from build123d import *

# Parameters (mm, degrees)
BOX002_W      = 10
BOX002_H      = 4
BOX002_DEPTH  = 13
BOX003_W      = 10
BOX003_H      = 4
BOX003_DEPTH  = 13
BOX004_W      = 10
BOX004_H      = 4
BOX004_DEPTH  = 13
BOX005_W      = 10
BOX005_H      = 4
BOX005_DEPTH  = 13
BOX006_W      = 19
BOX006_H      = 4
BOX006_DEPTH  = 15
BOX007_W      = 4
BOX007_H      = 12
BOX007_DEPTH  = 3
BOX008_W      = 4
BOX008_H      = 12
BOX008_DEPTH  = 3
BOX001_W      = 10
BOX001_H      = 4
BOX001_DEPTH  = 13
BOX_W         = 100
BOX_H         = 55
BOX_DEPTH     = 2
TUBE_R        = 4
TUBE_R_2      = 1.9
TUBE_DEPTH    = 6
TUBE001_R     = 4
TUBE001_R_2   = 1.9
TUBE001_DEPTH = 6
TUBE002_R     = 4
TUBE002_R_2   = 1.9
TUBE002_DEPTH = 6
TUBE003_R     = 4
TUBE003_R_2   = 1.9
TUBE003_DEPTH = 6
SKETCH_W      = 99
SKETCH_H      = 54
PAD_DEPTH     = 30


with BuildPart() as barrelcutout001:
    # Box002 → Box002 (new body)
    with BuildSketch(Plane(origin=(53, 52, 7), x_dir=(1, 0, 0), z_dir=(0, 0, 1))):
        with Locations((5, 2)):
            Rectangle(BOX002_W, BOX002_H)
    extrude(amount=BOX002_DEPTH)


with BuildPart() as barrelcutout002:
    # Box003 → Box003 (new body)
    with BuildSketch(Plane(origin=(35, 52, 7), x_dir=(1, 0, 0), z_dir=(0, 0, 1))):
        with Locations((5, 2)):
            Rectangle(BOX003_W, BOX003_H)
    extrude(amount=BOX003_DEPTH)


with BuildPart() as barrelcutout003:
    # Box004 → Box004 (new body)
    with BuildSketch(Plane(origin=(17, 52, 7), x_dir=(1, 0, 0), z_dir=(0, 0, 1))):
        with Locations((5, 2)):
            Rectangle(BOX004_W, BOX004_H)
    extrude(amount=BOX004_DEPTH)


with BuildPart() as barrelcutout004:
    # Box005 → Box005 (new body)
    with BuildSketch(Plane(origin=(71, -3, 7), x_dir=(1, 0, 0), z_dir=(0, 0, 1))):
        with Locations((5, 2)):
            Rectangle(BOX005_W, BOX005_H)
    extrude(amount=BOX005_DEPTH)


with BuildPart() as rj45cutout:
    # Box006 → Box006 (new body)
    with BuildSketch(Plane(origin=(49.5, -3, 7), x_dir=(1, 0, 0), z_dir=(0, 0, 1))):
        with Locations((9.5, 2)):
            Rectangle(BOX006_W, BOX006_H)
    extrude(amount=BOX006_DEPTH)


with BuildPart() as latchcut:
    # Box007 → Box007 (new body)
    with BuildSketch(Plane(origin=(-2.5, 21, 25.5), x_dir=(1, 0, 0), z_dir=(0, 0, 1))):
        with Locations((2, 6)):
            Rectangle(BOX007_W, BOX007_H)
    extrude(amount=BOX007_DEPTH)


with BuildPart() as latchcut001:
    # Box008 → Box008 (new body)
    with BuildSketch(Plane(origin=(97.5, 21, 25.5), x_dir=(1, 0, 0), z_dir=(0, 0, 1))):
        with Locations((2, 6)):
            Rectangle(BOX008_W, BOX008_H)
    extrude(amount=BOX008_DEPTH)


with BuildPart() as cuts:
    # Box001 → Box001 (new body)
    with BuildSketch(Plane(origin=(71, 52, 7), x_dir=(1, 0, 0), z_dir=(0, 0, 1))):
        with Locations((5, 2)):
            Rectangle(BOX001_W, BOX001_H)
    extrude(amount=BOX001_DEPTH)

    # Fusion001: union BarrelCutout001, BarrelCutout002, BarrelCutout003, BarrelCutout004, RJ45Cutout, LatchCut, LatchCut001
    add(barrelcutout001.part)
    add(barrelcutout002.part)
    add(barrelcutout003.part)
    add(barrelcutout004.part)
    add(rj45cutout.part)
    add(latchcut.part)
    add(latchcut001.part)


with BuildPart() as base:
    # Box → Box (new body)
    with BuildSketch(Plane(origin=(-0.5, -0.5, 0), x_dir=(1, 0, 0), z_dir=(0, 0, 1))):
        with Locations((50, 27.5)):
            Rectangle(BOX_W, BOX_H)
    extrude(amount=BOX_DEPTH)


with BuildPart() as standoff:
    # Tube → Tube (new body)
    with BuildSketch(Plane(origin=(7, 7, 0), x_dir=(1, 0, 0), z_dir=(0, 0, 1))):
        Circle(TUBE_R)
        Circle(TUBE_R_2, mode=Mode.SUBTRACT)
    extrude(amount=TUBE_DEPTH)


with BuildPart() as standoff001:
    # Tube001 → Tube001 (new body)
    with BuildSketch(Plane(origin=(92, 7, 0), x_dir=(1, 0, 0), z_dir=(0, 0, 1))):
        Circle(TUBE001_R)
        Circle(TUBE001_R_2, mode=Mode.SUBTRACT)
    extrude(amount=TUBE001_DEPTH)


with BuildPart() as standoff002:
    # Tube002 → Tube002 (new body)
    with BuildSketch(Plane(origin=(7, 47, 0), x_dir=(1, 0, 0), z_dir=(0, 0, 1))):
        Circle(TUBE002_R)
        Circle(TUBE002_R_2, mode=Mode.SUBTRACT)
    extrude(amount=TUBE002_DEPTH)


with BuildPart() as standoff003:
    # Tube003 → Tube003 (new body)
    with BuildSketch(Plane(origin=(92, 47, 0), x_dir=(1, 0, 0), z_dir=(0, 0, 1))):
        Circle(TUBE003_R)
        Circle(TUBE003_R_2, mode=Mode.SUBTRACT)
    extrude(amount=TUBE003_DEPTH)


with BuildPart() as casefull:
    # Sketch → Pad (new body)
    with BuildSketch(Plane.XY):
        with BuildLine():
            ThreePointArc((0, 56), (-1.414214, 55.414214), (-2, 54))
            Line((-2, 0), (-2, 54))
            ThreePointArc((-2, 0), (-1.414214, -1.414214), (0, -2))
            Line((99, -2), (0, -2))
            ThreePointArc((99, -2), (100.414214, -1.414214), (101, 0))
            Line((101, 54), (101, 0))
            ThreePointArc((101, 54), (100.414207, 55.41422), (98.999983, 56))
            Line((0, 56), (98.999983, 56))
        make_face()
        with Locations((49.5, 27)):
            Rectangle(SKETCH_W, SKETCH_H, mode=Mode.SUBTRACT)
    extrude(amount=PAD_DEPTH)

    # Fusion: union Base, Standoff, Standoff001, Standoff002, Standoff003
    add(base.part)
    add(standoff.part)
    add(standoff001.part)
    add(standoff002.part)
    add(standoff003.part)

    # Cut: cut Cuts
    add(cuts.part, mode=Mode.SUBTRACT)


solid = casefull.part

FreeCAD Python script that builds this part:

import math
import FreeCAD as App
import Part
import Sketcher


def add_polygon(sketch, points):
    """Adds a closed chain of lines whose ends are joined by coincident constraints."""
    first, n = sketch.GeometryCount, len(points)
    for a, b in zip(points, points[1:] + points[:1]):
        sketch.addGeometry(Part.LineSegment(App.Vector(*a, 0), App.Vector(*b, 0)), False)
    for i in range(n):
        sketch.addConstraint(Sketcher.Constraint("Coincident", first + i, 2, first + (i + 1) % n, 1))

doc = App.newDocument("Part")
body = doc.addObject("PartDesign::Body", "Body")

sketch1 = doc.addObject("Sketcher::SketchObject", "Sketch")
body.addObject(sketch1)
sketch1.AttachmentSupport = (doc.XY_Plane, [""])
sketch1.MapMode = "FlatFace"
sketch1.AttachmentOffset = App.Placement(App.Vector(0, 0, 7), App.Rotation())
add_polygon(sketch1, [(53, 56), (53, 52), (63, 52), (63, 56)])
sketch1.addConstraint([
    Sketcher.Constraint("Vertical", 0),
    Sketcher.Constraint("Horizontal", 1),
    Sketcher.Constraint("Vertical", 2),
    Sketcher.Constraint("Horizontal", 3),
    Sketcher.Constraint("DistanceX", 1, 1, 1, 2, 10.0),
    Sketcher.Constraint("DistanceY", 0, 2, 0, 1, 4.0),
    Sketcher.Constraint("DistanceX", -1, 1, 0, 2, 53.0),
    Sketcher.Constraint("DistanceY", -1, 1, 0, 2, 52.0),
])
pad1 = doc.addObject("PartDesign::Pad", "Pad")
body.addObject(pad1)
pad1.Profile = sketch1
pad1.Length = 13
body2 = doc.addObject("PartDesign::Body", "Body001")

sketch2 = doc.addObject("Sketcher::SketchObject", "Sketch001")
body2.addObject(sketch2)
sketch2.AttachmentSupport = (doc.getObject("XY_Plane001"), [""])
sketch2.MapMode = "FlatFace"
sketch2.AttachmentOffset = App.Placement(App.Vector(0, 0, 7), App.Rotation())
add_polygon(sketch2, [(35, 56), (35, 52), (45, 52), (45, 56)])
sketch2.addConstraint([
    Sketcher.Constraint("Vertical", 0),
    Sketcher.Constraint("Horizontal", 1),
    Sketcher.Constraint("Vertical", 2),
    Sketcher.Constraint("Horizontal", 3),
    Sketcher.Constraint("DistanceX", 1, 1, 1, 2, 10.0),
    Sketcher.Constraint("DistanceY", 0, 2, 0, 1, 4.0),
    Sketcher.Constraint("DistanceX", -1, 1, 0, 2, 35.0),
    Sketcher.Constraint("DistanceY", -1, 1, 0, 2, 52.0),
])
pad2 = doc.addObject("PartDesign::Pad", "Pad001")
body2.addObject(pad2)
pad2.Profile = sketch2
pad2.Length = 13
body3 = doc.addObject("PartDesign::Body", "Body002")

sketch3 = doc.addObject("Sketcher::SketchObject", "Sketch002")
body3.addObject(sketch3)
sketch3.AttachmentSupport = (doc.getObject("XY_Plane002"), [""])
sketch3.MapMode = "FlatFace"
sketch3.AttachmentOffset = App.Placement(App.Vector(0, 0, 7), App.Rotation())
add_polygon(sketch3, [(17, 56), (17, 52), (27, 52), (27, 56)])
sketch3.addConstraint([
    Sketcher.Constraint("Vertical", 0),
    Sketcher.Constraint("Horizontal", 1),
    Sketcher.Constraint("Vertical", 2),
    Sketcher.Constraint("Horizontal", 3),
    Sketcher.Constraint("DistanceX", 1, 1, 1, 2, 10.0),
    Sketcher.Constraint("DistanceY", 0, 2, 0, 1, 4.0),
    Sketcher.Constraint("DistanceX", -1, 1, 0, 2, 17.0),
    Sketcher.Constraint("DistanceY", -1, 1, 0, 2, 52.0),
])
pad3 = doc.addObject("PartDesign::Pad", "Pad002")
body3.addObject(pad3)
pad3.Profile = sketch3
pad3.Length = 13
body4 = doc.addObject("PartDesign::Body", "Body003")

sketch4 = doc.addObject("Sketcher::SketchObject", "Sketch003")
body4.addObject(sketch4)
sketch4.AttachmentSupport = (doc.getObject("XY_Plane003"), [""])
sketch4.MapMode = "FlatFace"
sketch4.AttachmentOffset = App.Placement(App.Vector(0, 0, 7), App.Rotation())
add_polygon(sketch4, [(71, 1), (71, -3), (81, -3), (81, 1)])
sketch4.addConstraint([
    Sketcher.Constraint("Vertical", 0),
    Sketcher.Constraint("Horizontal", 1),
    Sketcher.Constraint("Vertical", 2),
    Sketcher.Constraint("Horizontal", 3),
    Sketcher.Constraint("DistanceX", 1, 1, 1, 2, 10.0),
    Sketcher.Constraint("DistanceY", 0, 2, 0, 1, 4.0),
    Sketcher.Constraint("DistanceX", -1, 1, 0, 2, 71.0),
    Sketcher.Constraint("DistanceY", 0, 2, -1, 1, 3.0),
])
pad4 = doc.addObject("PartDesign::Pad", "Pad003")
body4.addObject(pad4)
pad4.Profile = sketch4
pad4.Length = 13
body5 = doc.addObject("PartDesign::Body", "Body004")

sketch5 = doc.addObject("Sketcher::SketchObject", "Sketch004")
body5.addObject(sketch5)
sketch5.AttachmentSupport = (doc.getObject("XY_Plane004"), [""])
sketch5.MapMode = "FlatFace"
sketch5.AttachmentOffset = App.Placement(App.Vector(0, 0, 7), App.Rotation())
add_polygon(sketch5, [(49.5, 1), (49.5, -3), (68.5, -3), (68.5, 1)])
sketch5.addConstraint([
    Sketcher.Constraint("Vertical", 0),
    Sketcher.Constraint("Horizontal", 1),
    Sketcher.Constraint("Vertical", 2),
    Sketcher.Constraint("Horizontal", 3),
    Sketcher.Constraint("DistanceX", 1, 1, 1, 2, 19.0),
    Sketcher.Constraint("DistanceY", 0, 2, 0, 1, 4.0),
    Sketcher.Constraint("DistanceY", 0, 2, -1, 1, 3.0),
    Sketcher.Constraint("DistanceX", -1, 1, 0, 2, 49.5),
])
pad5 = doc.addObject("PartDesign::Pad", "Pad004")
body5.addObject(pad5)
pad5.Profile = sketch5
pad5.Length = 15
body6 = doc.addObject("PartDesign::Body", "Body005")

sketch6 = doc.addObject("Sketcher::SketchObject", "Sketch005")
body6.addObject(sketch6)
sketch6.AttachmentSupport = (doc.getObject("XY_Plane005"), [""])
sketch6.MapMode = "FlatFace"
sketch6.AttachmentOffset = App.Placement(App.Vector(0, 0, 25.5), App.Rotation())
add_polygon(sketch6, [(-2.5, 33), (-2.5, 21), (1.5, 21), (1.5, 33)])
sketch6.addConstraint([
    Sketcher.Constraint("Vertical", 0),
    Sketcher.Constraint("Horizontal", 1),
    Sketcher.Constraint("Vertical", 2),
    Sketcher.Constraint("Horizontal", 3),
    Sketcher.Constraint("DistanceX", 1, 1, 1, 2, 4.0),
    Sketcher.Constraint("DistanceY", 0, 2, 0, 1, 12.0),
    Sketcher.Constraint("DistanceY", -1, 1, 0, 2, 21.0),
    Sketcher.Constraint("DistanceX", 0, 2, -1, 1, 2.5),
])
pad6 = doc.addObject("PartDesign::Pad", "Pad005")
body6.addObject(pad6)
pad6.Profile = sketch6
pad6.Length = 3
body7 = doc.addObject("PartDesign::Body", "Body006")

sketch7 = doc.addObject("Sketcher::SketchObject", "Sketch006")
body7.addObject(sketch7)
sketch7.AttachmentSupport = (doc.getObject("XY_Plane006"), [""])
sketch7.MapMode = "FlatFace"
sketch7.AttachmentOffset = App.Placement(App.Vector(0, 0, 25.5), App.Rotation())
add_polygon(sketch7, [(97.5, 33), (97.5, 21), (101.5, 21), (101.5, 33)])
sketch7.addConstraint([
    Sketcher.Constraint("Vertical", 0),
    Sketcher.Constraint("Horizontal", 1),
    Sketcher.Constraint("Vertical", 2),
    Sketcher.Constraint("Horizontal", 3),
    Sketcher.Constraint("DistanceX", 1, 1, 1, 2, 4.0),
    Sketcher.Constraint("DistanceY", 0, 2, 0, 1, 12.0),
    Sketcher.Constraint("DistanceY", -1, 1, 0, 2, 21.0),
    Sketcher.Constraint("DistanceX", -1, 1, 0, 2, 97.5),
])
pad7 = doc.addObject("PartDesign::Pad", "Pad006")
body7.addObject(pad7)
pad7.Profile = sketch7
pad7.Length = 3
body8 = doc.addObject("PartDesign::Body", "Body007")
body8.AllowCompound = True

sketch8 = doc.addObject("Sketcher::SketchObject", "Sketch007")
body8.addObject(sketch8)
sketch8.AttachmentSupport = (doc.getObject("XY_Plane007"), [""])
sketch8.MapMode = "FlatFace"
sketch8.AttachmentOffset = App.Placement(App.Vector(0, 0, 7), App.Rotation())
add_polygon(sketch8, [(71, 56), (71, 52), (81, 52), (81, 56)])
sketch8.addConstraint([
    Sketcher.Constraint("Vertical", 0),
    Sketcher.Constraint("Horizontal", 1),
    Sketcher.Constraint("Vertical", 2),
    Sketcher.Constraint("Horizontal", 3),
    Sketcher.Constraint("DistanceX", 1, 1, 1, 2, 10.0),
    Sketcher.Constraint("DistanceY", 0, 2, 0, 1, 4.0),
    Sketcher.Constraint("DistanceX", -1, 1, 0, 2, 71.0),
    Sketcher.Constraint("DistanceY", -1, 1, 0, 2, 52.0),
])
pad8 = doc.addObject("PartDesign::Pad", "Pad007")
body8.addObject(pad8)
pad8.Profile = sketch8
pad8.Length = 13
doc.recompute()

boolean = doc.addObject("PartDesign::Boolean", "Boolean")
body8.addObject(boolean)
boolean.Type = "Fuse"
boolean.addObjects([body])
doc.recompute()

boolean2 = doc.addObject("PartDesign::Boolean", "Boolean001")
body8.addObject(boolean2)
boolean2.Type = "Fuse"
boolean2.addObjects([body2])
doc.recompute()

boolean3 = doc.addObject("PartDesign::Boolean", "Boolean002")
body8.addObject(boolean3)
boolean3.Type = "Fuse"
boolean3.addObjects([body3])
doc.recompute()

boolean4 = doc.addObject("PartDesign::Boolean", "Boolean003")
body8.addObject(boolean4)
boolean4.Type = "Fuse"
boolean4.addObjects([body4])
doc.recompute()

boolean5 = doc.addObject("PartDesign::Boolean", "Boolean004")
body8.addObject(boolean5)
boolean5.Type = "Fuse"
boolean5.addObjects([body5])
doc.recompute()

boolean6 = doc.addObject("PartDesign::Boolean", "Boolean005")
body8.addObject(boolean6)
boolean6.Type = "Fuse"
boolean6.addObjects([body6])
doc.recompute()

boolean7 = doc.addObject("PartDesign::Boolean", "Boolean006")
body8.addObject(boolean7)
boolean7.Type = "Fuse"
boolean7.addObjects([body7])
body9 = doc.addObject("PartDesign::Body", "Body008")

sketch9 = doc.addObject("Sketcher::SketchObject", "Sketch008")
body9.addObject(sketch9)
sketch9.AttachmentSupport = (doc.getObject("XY_Plane008"), [""])
sketch9.MapMode = "FlatFace"
add_polygon(sketch9, [(0, 54), (0, 0), (100, 0), (100, 54)])
sketch9.addConstraint([
    Sketcher.Constraint("Vertical", 0),
    Sketcher.Constraint("Horizontal", 1),
    Sketcher.Constraint("Vertical", 2),
    Sketcher.Constraint("Horizontal", 3),
    Sketcher.Constraint("DistanceX", 1, 1, 1, 2, 100.0),
    Sketcher.Constraint("DistanceY", 0, 2, 0, 1, 55.0),
    Sketcher.Constraint("DistanceX", 0, 2, -1, 1, 0.5),
    Sketcher.Constraint("DistanceY", 0, 2, -1, 1, 0.5),
])
pad9 = doc.addObject("PartDesign::Pad", "Pad008")
body9.addObject(pad9)
pad9.Profile = sketch9
pad9.Length = 2
body10 = doc.addObject("PartDesign::Body", "Body009")

sketch10 = doc.addObject("Sketcher::SketchObject", "Sketch009")
body10.addObject(sketch10)
sketch10.AttachmentSupport = (doc.getObject("XY_Plane009"), [""])
sketch10.MapMode = "FlatFace"
sketch10.addGeometry([
    Part.Circle(App.Vector(7, 7, 0), App.Vector(0, 0, 1), 4),
    Part.Circle(App.Vector(7, 7, 0), App.Vector(0, 0, 1), 1.9),
], False)
sketch10.addConstraint([
    Sketcher.Constraint("Coincident", 1, 3, 0, 3),
    Sketcher.Constraint("Diameter", 0, 8.0),
    Sketcher.Constraint("Diameter", 1, 3.8),
    Sketcher.Constraint("DistanceX", -1, 1, 0, 3, 7.0),
    Sketcher.Constraint("DistanceY", -1, 1, 0, 3, 7.0),
])
pad10 = doc.addObject("PartDesign::Pad", "Pad009")
body10.addObject(pad10)
pad10.Profile = sketch10
pad10.Length = 6
body11 = doc.addObject("PartDesign::Body", "Body010")

sketch11 = doc.addObject("Sketcher::SketchObject", "Sketch010")
body11.addObject(sketch11)
sketch11.AttachmentSupport = (doc.getObject("XY_Plane010"), [""])
sketch11.MapMode = "FlatFace"
sketch11.addGeometry([
    Part.Circle(App.Vector(92, 7, 0), App.Vector(0, 0, 1), 4),
    Part.Circle(App.Vector(92, 7, 0), App.Vector(0, 0, 1), 1.9),
], False)
sketch11.addConstraint([
    Sketcher.Constraint("Coincident", 1, 3, 0, 3),
    Sketcher.Constraint("Diameter", 0, 8.0),
    Sketcher.Constraint("Diameter", 1, 3.8),
    Sketcher.Constraint("DistanceX", -1, 1, 0, 3, 92.0),
    Sketcher.Constraint("DistanceY", -1, 1, 0, 3, 7.0),
])
pad11 = doc.addObject("PartDesign::Pad", "Pad010")
body11.addObject(pad11)
pad11.Profile = sketch11
pad11.Length = 6
body12 = doc.addObject("PartDesign::Body", "Body011")

sketch12 = doc.addObject("Sketcher::SketchObject", "Sketch011")
body12.addObject(sketch12)
sketch12.AttachmentSupport = (doc.getObject("XY_Plane011"), [""])
sketch12.MapMode = "FlatFace"
sketch12.addGeometry([
    Part.Circle(App.Vector(7, 47, 0), App.Vector(0, 0, 1), 4),
    Part.Circle(App.Vector(7, 47, 0), App.Vector(0, 0, 1), 1.9),
], False)
sketch12.addConstraint([
    Sketcher.Constraint("Coincident", 1, 3, 0, 3),
    Sketcher.Constraint("Diameter", 0, 8.0),
    Sketcher.Constraint("Diameter", 1, 3.8),
    Sketcher.Constraint("DistanceX", -1, 1, 0, 3, 7.0),
    Sketcher.Constraint("DistanceY", -1, 1, 0, 3, 47.0),
])
pad12 = doc.addObject("PartDesign::Pad", "Pad011")
body12.addObject(pad12)
pad12.Profile = sketch12
pad12.Length = 6
body13 = doc.addObject("PartDesign::Body", "Body012")

sketch13 = doc.addObject("Sketcher::SketchObject", "Sketch012")
body13.addObject(sketch13)
sketch13.AttachmentSupport = (doc.getObject("XY_Plane012"), [""])
sketch13.MapMode = "FlatFace"
sketch13.addGeometry([
    Part.Circle(App.Vector(92, 47, 0), App.Vector(0, 0, 1), 4),
    Part.Circle(App.Vector(92, 47, 0), App.Vector(0, 0, 1), 1.9),
], False)
sketch13.addConstraint([
    Sketcher.Constraint("Coincident", 1, 3, 0, 3),
    Sketcher.Constraint("Diameter", 0, 8.0),
    Sketcher.Constraint("Diameter", 1, 3.8),
    Sketcher.Constraint("DistanceX", -1, 1, 0, 3, 92.0),
    Sketcher.Constraint("DistanceY", -1, 1, 0, 3, 47.0),
])
pad13 = doc.addObject("PartDesign::Pad", "Pad012")
body13.addObject(pad13)
pad13.Profile = sketch13
pad13.Length = 6
body14 = doc.addObject("PartDesign::Body", "Body013")

sketch14 = doc.addObject("Sketcher::SketchObject", "Sketch013")
body14.addObject(sketch14)
sketch14.AttachmentSupport = (doc.getObject("XY_Plane013"), [""])
sketch14.MapMode = "FlatFace"
sketch14.addGeometry(Part.ArcOfCircle(Part.Circle(App.Vector(0, 54, 0), App.Vector(0, 0, 1), 2), math.radians(90), math.radians(180)), False)
sketch14.addGeometry(Part.LineSegment(App.Vector(-2, 54, 0), App.Vector(-2, 0, 0)), False)
sketch14.addGeometry(Part.ArcOfCircle(Part.Circle(App.Vector(0, 0, 0), App.Vector(0, 0, 1), 2), math.radians(180), math.radians(270)), False)
sketch14.addGeometry(Part.LineSegment(App.Vector(0, -2, 0), App.Vector(99, -2, 0)), False)
sketch14.addGeometry(Part.ArcOfCircle(Part.Circle(App.Vector(99, 0, 0), App.Vector(0, 0, 1), 2), math.radians(-90), math.radians(0)), False)
sketch14.addGeometry(Part.LineSegment(App.Vector(101, 0, 0), App.Vector(101, 54, 0)), False)
sketch14.addGeometry(Part.ArcOfCircle(Part.Circle(App.Vector(99, 54, 0), App.Vector(0, 0, 1), 2), math.radians(0), math.radians(90)), False)
sketch14.addGeometry(Part.LineSegment(App.Vector(99, 56, 0), App.Vector(0, 56, 0)), False)
add_polygon(sketch14, [(99, 0), (0, 0), (0, 54), (99, 54)])
sketch14.addConstraint([
    Sketcher.Constraint("Tangent", 0, 2, 1, 1),
    Sketcher.Constraint("Tangent", 1, 2, 2, 1),
    Sketcher.Constraint("Tangent", 2, 2, 3, 1),
    Sketcher.Constraint("Tangent", 3, 2, 4, 1),
    Sketcher.Constraint("Tangent", 4, 2, 5, 1),
    Sketcher.Constraint("Tangent", 5, 2, 6, 1),
    Sketcher.Constraint("Coincident", 6, 2, 7, 1),
    Sketcher.Constraint("Tangent", 7, 2, 0, 1),
    Sketcher.Constraint("Vertical", 1),
    Sketcher.Constraint("Horizontal", 3),
    Sketcher.Constraint("Vertical", 5),
    Sketcher.Constraint("Horizontal", 7),
    Sketcher.Constraint("Horizontal", 8),
    Sketcher.Constraint("Vertical", 9),
    Sketcher.Constraint("Horizontal", 10),
    Sketcher.Constraint("Vertical", 11),
    Sketcher.Constraint("Coincident", 2, 3, -1, 1),
    Sketcher.Constraint("Coincident", 8, 2, -1, 1),
    Sketcher.Constraint("Coincident", 9, 2, 0, 3),
    Sketcher.Constraint("Coincident", 10, 2, 6, 3),
    Sketcher.Constraint("Equal", 2, 4),
    Sketcher.Constraint("Radius", 0, 1.999999),
    Sketcher.Constraint("DistanceX", 3, 1, 3, 2, 99.0),
    Sketcher.Constraint("DistanceY", 1, 2, 1, 1, 54.0),
    Sketcher.Constraint("DistanceX", 7, 2, 7, 1, 98.999983),
])
pad14 = doc.addObject("PartDesign::Pad", "Pad013")
body14.addObject(pad14)
pad14.Profile = sketch14
pad14.Length = 30
doc.recompute()

boolean8 = doc.addObject("PartDesign::Boolean", "Boolean007")
body14.addObject(boolean8)
boolean8.Type = "Fuse"
boolean8.addObjects([body9])
doc.recompute()

boolean9 = doc.addObject("PartDesign::Boolean", "Boolean008")
body14.addObject(boolean9)
boolean9.Type = "Fuse"
boolean9.addObjects([body10])
doc.recompute()

boolean10 = doc.addObject("PartDesign::Boolean", "Boolean009")
body14.addObject(boolean10)
boolean10.Type = "Fuse"
boolean10.addObjects([body11])
doc.recompute()

boolean11 = doc.addObject("PartDesign::Boolean", "Boolean010")
body14.addObject(boolean11)
boolean11.Type = "Fuse"
boolean11.addObjects([body12])
doc.recompute()

boolean12 = doc.addObject("PartDesign::Boolean", "Boolean011")
body14.addObject(boolean12)
boolean12.Type = "Fuse"
boolean12.addObjects([body13])
doc.recompute()

boolean13 = doc.addObject("PartDesign::Boolean", "Boolean012")
body14.addObject(boolean13)
boolean13.Type = "Cut"
boolean13.addObjects([body8])

doc.recompute()
